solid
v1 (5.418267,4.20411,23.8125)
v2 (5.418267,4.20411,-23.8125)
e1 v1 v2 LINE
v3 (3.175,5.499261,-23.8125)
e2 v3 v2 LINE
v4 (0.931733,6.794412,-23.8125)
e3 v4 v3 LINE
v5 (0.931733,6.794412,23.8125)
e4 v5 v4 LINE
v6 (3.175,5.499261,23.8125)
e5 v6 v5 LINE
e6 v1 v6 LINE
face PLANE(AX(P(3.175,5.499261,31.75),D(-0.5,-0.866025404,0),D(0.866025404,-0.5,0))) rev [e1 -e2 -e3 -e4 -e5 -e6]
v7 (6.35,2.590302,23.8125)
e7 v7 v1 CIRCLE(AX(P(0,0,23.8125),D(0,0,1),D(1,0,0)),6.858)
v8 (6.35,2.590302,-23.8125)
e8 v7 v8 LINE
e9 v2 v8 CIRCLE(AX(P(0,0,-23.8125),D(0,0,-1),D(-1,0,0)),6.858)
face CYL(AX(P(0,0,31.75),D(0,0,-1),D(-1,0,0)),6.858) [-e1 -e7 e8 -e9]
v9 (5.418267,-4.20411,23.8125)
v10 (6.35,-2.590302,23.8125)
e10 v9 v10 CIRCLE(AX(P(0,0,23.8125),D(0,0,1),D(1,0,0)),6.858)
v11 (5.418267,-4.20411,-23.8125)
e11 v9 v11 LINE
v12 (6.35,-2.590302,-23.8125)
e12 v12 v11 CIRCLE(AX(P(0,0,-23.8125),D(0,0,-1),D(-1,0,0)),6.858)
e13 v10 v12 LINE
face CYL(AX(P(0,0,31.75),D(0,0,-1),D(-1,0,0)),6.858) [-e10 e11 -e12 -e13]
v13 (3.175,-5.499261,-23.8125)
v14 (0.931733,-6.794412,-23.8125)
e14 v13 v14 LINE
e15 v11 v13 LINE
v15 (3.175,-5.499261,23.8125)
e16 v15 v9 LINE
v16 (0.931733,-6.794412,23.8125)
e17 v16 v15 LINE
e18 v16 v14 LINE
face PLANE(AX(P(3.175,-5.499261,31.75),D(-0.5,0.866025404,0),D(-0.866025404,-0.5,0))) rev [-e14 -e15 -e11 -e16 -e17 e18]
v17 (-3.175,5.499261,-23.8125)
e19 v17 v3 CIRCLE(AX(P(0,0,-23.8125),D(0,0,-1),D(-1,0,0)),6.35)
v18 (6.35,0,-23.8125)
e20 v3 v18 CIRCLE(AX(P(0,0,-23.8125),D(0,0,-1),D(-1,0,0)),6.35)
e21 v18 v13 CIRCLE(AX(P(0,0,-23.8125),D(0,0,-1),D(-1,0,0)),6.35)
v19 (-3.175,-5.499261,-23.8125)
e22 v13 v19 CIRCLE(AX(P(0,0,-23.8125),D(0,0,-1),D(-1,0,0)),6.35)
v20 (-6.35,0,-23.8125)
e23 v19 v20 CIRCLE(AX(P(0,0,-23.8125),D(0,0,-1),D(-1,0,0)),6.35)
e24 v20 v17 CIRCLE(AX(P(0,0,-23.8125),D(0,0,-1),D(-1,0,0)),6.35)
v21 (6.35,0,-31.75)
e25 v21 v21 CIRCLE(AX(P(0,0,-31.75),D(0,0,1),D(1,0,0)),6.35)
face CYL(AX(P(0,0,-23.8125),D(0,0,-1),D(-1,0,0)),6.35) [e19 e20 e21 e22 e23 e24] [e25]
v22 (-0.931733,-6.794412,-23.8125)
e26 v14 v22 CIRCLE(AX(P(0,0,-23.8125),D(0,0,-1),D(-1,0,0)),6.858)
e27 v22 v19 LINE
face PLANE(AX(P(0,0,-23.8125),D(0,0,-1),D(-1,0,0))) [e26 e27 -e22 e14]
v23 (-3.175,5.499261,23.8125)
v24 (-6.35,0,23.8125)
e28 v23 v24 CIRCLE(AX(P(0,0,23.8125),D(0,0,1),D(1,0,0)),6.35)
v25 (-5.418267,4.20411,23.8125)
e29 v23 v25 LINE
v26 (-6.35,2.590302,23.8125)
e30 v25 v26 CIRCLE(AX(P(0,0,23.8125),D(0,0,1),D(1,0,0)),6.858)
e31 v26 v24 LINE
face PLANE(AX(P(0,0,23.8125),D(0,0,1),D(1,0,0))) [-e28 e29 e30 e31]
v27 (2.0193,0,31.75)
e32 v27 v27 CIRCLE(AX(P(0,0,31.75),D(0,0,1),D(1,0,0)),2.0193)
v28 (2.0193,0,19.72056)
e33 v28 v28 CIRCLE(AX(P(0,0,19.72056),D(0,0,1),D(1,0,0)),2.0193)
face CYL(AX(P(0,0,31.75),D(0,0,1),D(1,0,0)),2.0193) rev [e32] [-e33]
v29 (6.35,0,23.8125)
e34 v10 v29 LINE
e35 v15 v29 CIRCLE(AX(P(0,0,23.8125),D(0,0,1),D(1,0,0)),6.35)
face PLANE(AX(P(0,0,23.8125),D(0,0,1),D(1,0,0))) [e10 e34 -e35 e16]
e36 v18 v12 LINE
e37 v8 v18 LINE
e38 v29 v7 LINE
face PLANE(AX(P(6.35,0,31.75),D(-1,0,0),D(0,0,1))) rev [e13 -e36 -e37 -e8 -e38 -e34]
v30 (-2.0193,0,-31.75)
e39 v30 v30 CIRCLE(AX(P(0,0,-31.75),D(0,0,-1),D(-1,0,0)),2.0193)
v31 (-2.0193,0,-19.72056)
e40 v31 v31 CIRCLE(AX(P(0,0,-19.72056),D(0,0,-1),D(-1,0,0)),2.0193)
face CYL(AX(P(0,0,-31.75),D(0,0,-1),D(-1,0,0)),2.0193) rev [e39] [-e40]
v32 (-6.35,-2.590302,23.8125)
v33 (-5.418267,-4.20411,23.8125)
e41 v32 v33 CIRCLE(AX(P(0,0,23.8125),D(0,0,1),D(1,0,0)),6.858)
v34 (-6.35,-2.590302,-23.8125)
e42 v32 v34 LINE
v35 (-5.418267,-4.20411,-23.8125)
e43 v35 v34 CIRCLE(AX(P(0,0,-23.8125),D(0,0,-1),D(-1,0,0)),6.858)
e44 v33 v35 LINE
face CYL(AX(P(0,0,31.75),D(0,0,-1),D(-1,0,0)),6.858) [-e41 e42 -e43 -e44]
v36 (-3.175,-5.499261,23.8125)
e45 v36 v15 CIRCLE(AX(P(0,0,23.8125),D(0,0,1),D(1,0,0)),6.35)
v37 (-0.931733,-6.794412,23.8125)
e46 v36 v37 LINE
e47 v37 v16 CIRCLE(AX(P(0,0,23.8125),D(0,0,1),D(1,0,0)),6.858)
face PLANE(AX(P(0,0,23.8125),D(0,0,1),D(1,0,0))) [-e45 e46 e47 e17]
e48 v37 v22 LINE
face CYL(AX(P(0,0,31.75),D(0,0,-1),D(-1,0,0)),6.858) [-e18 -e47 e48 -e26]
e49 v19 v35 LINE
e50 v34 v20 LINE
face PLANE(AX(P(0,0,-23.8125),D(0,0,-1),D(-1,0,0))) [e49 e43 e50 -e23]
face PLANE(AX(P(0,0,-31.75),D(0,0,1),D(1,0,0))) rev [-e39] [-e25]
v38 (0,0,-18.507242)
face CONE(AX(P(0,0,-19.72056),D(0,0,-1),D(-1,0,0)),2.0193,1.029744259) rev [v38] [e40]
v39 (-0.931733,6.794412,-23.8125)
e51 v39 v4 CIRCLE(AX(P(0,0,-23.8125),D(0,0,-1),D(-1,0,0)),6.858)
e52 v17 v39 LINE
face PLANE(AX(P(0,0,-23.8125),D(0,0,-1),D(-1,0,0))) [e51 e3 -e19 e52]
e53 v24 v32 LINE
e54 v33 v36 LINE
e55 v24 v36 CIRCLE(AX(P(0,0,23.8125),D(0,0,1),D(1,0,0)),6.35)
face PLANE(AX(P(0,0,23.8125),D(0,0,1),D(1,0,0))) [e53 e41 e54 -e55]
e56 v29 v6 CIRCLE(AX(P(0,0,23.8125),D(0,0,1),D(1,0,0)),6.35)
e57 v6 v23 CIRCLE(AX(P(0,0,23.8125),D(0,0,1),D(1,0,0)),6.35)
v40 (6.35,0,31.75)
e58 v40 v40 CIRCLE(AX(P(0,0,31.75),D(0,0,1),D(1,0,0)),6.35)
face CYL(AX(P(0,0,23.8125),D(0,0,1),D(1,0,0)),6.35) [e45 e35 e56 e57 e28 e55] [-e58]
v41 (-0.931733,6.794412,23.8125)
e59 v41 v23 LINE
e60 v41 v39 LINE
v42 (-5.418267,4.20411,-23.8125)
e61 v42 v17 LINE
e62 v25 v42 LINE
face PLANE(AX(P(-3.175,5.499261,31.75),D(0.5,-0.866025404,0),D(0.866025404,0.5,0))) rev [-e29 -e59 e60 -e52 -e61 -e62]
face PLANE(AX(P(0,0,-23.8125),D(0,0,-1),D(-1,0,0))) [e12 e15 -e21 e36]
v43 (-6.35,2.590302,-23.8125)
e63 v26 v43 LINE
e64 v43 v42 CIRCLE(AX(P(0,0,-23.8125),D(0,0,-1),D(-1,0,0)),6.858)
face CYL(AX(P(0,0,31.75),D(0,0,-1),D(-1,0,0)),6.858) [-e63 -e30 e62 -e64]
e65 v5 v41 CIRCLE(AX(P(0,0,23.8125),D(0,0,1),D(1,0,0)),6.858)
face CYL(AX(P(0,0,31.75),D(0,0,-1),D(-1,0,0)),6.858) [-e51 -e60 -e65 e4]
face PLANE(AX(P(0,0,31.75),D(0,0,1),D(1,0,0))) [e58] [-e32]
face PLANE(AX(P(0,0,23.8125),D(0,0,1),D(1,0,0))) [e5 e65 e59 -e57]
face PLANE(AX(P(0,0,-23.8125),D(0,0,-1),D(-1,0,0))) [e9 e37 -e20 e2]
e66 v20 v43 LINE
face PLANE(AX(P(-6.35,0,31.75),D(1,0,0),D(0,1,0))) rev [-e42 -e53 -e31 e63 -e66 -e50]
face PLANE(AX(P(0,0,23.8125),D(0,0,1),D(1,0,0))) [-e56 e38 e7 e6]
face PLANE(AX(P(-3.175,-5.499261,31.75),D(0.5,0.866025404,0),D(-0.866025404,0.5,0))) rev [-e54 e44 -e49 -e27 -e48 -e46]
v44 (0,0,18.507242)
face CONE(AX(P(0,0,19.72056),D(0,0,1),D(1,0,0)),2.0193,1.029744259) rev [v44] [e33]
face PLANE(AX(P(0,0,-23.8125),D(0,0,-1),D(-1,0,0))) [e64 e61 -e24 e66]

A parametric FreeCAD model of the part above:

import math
import FreeCAD as App
import Part
import Sketcher
Q = App.Units.Quantity


def add_polygon(sketch, points):
    """Adds a closed chain of lines whose ends are joined by coincident constraints."""
    first, n = sketch.GeometryCount, len(points)
    for a, b in zip(points, points[1:] + points[:1]):
        sketch.addGeometry(Part.LineSegment(App.Vector(*a, 0), App.Vector(*b, 0)), False)
    for i in range(n):
        sketch.addConstraint(Sketcher.Constraint("Coincident", first + i, 2, first + (i + 1) % n, 1))

doc = App.newDocument("Part")
body = doc.addObject("PartDesign::Body", "Body")

# Sketch on XY plane
sketch1 = body.newObject("Sketcher::SketchObject", "Sketch")
sketch1.AttachmentSupport = (doc.getObject("XY_Plane"), [""])
sketch1.MapMode = "FlatFace"
sketch1.addGeometry(Part.ArcOfCircle(Part.Circle(App.Vector(0, 0, 0), App.Vector(0, 0, 1), 6.9), math.radians(82.19), math.radians(97.81)), False)
sketch1.addGeometry(Part.LineSegment(App.Vector(-0.9, 6.8, 0), App.Vector(-5.4, 4.2, 0)), False)
sketch1.addGeometry(Part.ArcOfCircle(Part.Circle(App.Vector(0, 0, 0), App.Vector(0, 0, 1), 6.9), math.radians(142.19), math.radians(157.81)), False)
sketch1.addGeometry(Part.LineSegment(App.Vector(-6.3, 2.6, 0), App.Vector(-6.3, -2.6, 0)), False)
sketch1.addGeometry(Part.ArcOfCircle(Part.Circle(App.Vector(0, 0, 0), App.Vector(0, 0, 1), 6.9), math.radians(-157.81), math.radians(-142.19)), False)
sketch1.addGeometry(Part.LineSegment(App.Vector(-5.4, -4.2, 0), App.Vector(-0.9, -6.8, 0)), False)
sketch1.addGeometry(Part.ArcOfCircle(Part.Circle(App.Vector(0, 0, 0), App.Vector(0, 0, 1), 6.9), math.radians(-97.81), math.radians(-82.19)), False)
sketch1.addGeometry(Part.LineSegment(App.Vector(0.9, -6.8, 0), App.Vector(5.4, -4.2, 0)), False)
sketch1.addGeometry(Part.ArcOfCircle(Part.Circle(App.Vector(0, 0, 0), App.Vector(0, 0, 1), 6.9), math.radians(-37.81), math.radians(-22.19)), False)
sketch1.addGeometry(Part.LineSegment(App.Vector(6.3, -2.6, 0), App.Vector(6.3, 2.6, 0)), False)
sketch1.addGeometry(Part.ArcOfCircle(Part.Circle(App.Vector(0, 0, 0), App.Vector(0, 0, 1), 6.9), math.radians(22.19), math.radians(37.81)), False)
sketch1.addGeometry(Part.LineSegment(App.Vector(5.4, 4.2, 0), App.Vector(0.9, 6.8, 0)), False)
sketch1.addConstraint(Sketcher.Constraint("Coincident", 0, 2, 1, 1))
sketch1.addConstraint(Sketcher.Constraint("Coincident", 1, 2, 2, 1))
sketch1.addConstraint(Sketcher.Constraint("Coincident", 2, 2, 3, 1))
sketch1.addConstraint(Sketcher.Constraint("Coincident", 3, 2, 4, 1))
sketch1.addConstraint(Sketcher.Constraint("Coincident", 4, 2, 5, 1))
sketch1.addConstraint(Sketcher.Constraint("Coincident", 5, 2, 6, 1))
sketch1.addConstraint(Sketcher.Constraint("Coincident", 6, 2, 7, 1))
sketch1.addConstraint(Sketcher.Constraint("Coincident", 7, 2, 8, 1))
sketch1.addConstraint(Sketcher.Constraint("Coincident", 8, 2, 9, 1))
sketch1.addConstraint(Sketcher.Constraint("Coincident", 9, 2, 10, 1))
sketch1.addConstraint(Sketcher.Constraint("Coincident", 10, 2, 11, 1))
sketch1.addConstraint(Sketcher.Constraint("Coincident", 11, 2, 0, 1))
sketch1.addConstraint(Sketcher.Constraint("Vertical", 3))
sketch1.addConstraint(Sketcher.Constraint("Vertical", 9))
sketch1.addConstraint(Sketcher.Constraint("Coincident", 0, 3, -1, 1))
sketch1.addConstraint(Sketcher.Constraint("Coincident", 2, 3, -1, 1))
sketch1.addConstraint(Sketcher.Constraint("Coincident", 4, 3, -1, 1))
sketch1.addConstraint(Sketcher.Constraint("Coincident", 6, 3, -1, 1))
sketch1.addConstraint(Sketcher.Constraint("Coincident", 8, 3, -1, 1))
sketch1.addConstraint(Sketcher.Constraint("Coincident", 10, 3, -1, 1))
sketch1.addConstraint(Sketcher.Constraint("Equal", 0, 2))
sketch1.addConstraint(Sketcher.Constraint("Equal", 2, 4))
sketch1.addConstraint(Sketcher.Constraint("Equal", 4, 6))
sketch1.addConstraint(Sketcher.Constraint("Equal", 6, 8))
sketch1.addConstraint(Sketcher.Constraint("Equal", 8, 10))
sketch1.addConstraint(Sketcher.Constraint("Parallel", 1, 7))
sketch1.addConstraint(Sketcher.Constraint("Parallel", 5, 11))
sketch1.addConstraint(Sketcher.Constraint("Horizontal", 5, 2, 6, 2))
sketch1.addConstraint(Sketcher.Constraint("Horizontal", 4, 2, 7, 2))
sketch1.addConstraint(Sketcher.Constraint("Horizontal", 3, 2, 8, 2))
sketch1.addConstraint(Sketcher.Constraint("Horizontal", 1, 2, 10, 2))
sketch1.addConstraint(Sketcher.Constraint("Vertical", 1, 2, 4, 2))
sketch1.addConstraint(Sketcher.Constraint("Radius", 0, Q("0.27 in")))
sketch1.addConstraint(Sketcher.Constraint("Angle", 1, Q("-150 deg")))
sketch1.addConstraint(Sketcher.Constraint("DistanceX", 2, 2, -1, 1, Q("0.25 in")))
sketch1.addConstraint(Sketcher.Constraint("DistanceX", 4, 2, 6, 2, Q("0.25 in")))
pad1 = body.newObject("PartDesign::Pad", "Pad")
pad1.Profile = sketch1
pad1.Length = Q("2.5 in")
pad1.Midplane = True

# Sketch on XY plane
sketch2 = body.newObject("Sketcher::SketchObject", "Sketch001")
sketch2.AttachmentSupport = (doc.getObject("XY_Plane"), [""])
sketch2.MapMode = "FlatFace"
sketch2.AttachmentOffset = App.Placement(App.Vector(0, 0, 1.25 * 25.4), App.Rotation())
add_polygon(sketch2, [(-14, 14), (-14, -14), (14, -14), (14, 14)])  # lines 0-3
sketch2.addGeometry(Part.Circle(App.Vector(0, 0, 0), App.Vector(0, 0, 1), 6), False)  # 4
sketch2.addConstraint(Sketcher.Constraint("Vertical", 0))
sketch2.addConstraint(Sketcher.Constraint("Horizontal", 1))
sketch2.addConstraint(Sketcher.Constraint("Vertical", 2))
sketch2.addConstraint(Sketcher.Constraint("Horizontal", 3))
sketch2.addConstraint(Sketcher.Constraint("Coincident", 4, 3, -1, 1))
sketch2.addConstraint(Sketcher.Constraint("Symmetric", 0, 2, 2, 2, -1, 1))
sketch2.addConstraint(Sketcher.Constraint("Diameter", 4, Q("0.5 in")))
sketch2.addConstraint(Sketcher.Constraint("DistanceX", 1, 1, 1, 2, 27.938))
sketch2.addConstraint(Sketcher.Constraint("DistanceY", 0, 2, 0, 1, 28.954))
pocket1 = body.newObject("PartDesign::Pocket", "Pocket")
pocket1.Profile = sketch2
pocket1.Length = Q("0.3125 in")

# Sketch on XY plane
sketch3 = body.newObject("Sketcher::SketchObject", "Sketch002")
sketch3.AttachmentSupport = (doc.getObject("XY_Plane"), [""])
sketch3.MapMode = "FlatFace"
sketch3.AttachmentOffset = App.Placement(App.Vector(0, 0, -1.25 * 25.4), App.Rotation())
add_polygon(sketch3, [(14, 14), (14, -14), (-14, -14), (-14, 14)])  # lines 0-3
sketch3.addGeometry(Part.Circle(App.Vector(0, 0, 0), App.Vector(0, 0, 1), 6), False)  # 4
sketch3.addConstraint(Sketcher.Constraint("Vertical", 0))
sketch3.addConstraint(Sketcher.Constraint("Horizontal", 1))
sketch3.addConstraint(Sketcher.Constraint("Vertical", 2))
sketch3.addConstraint(Sketcher.Constraint("Horizontal", 3))
sketch3.addConstraint(Sketcher.Constraint("Coincident", 4, 3, -1, 1))
sketch3.addConstraint(Sketcher.Constraint("Symmetric", 0, 2, 2, 2, -1, 1))
sketch3.addConstraint(Sketcher.Constraint("Diameter", 4, Q("0.5 in")))
sketch3.addConstraint(Sketcher.Constraint("DistanceX", 1, 2, 1, 1, 27.938))
sketch3.addConstraint(Sketcher.Constraint("DistanceY", 0, 2, 0, 1, 28.954))
pocket2 = body.newObject("PartDesign::Pocket", "Pocket001")
pocket2.Profile = sketch3
pocket2.Length = Q("0.3125 in")
pocket2.Reversed = True

# Sketch on XY plane
sketch4 = body.newObject("Sketcher::SketchObject", "Sketch003")
sketch4.AttachmentSupport = (doc.getObject("XY_Plane"), [""])
sketch4.MapMode = "FlatFace"
sketch4.AttachmentOffset = App.Placement(App.Vector(0, 0, -1.25 * 25.4), App.Rotation())
sketch4.addGeometry(Part.Circle(App.Vector(0, 0, 0), App.Vector(0, 0, 1), 2), False)
sketch4.addConstraint(Sketcher.Constraint("Coincident", 0, 3, -1, 1))
sketch4.addConstraint(Sketcher.Constraint("Diameter", 0, Q("0.159 in")))
doc.recompute()
hole = body.newObject("PartDesign::Hole", "Hole")
hole.Profile = sketch4
hole.ThreadType = "None"
hole.Diameter = Q("0.159 in")
hole.DepthType = "Dimension"
hole.Depth = Q("0.4736 in")
hole.DrillPoint = "Angled"
hole.DrillPointAngle = 118
hole.Reversed = True

# Sketch on XY plane
sketch5 = body.newObject("Sketcher::SketchObject", "Sketch004")
sketch5.AttachmentSupport = (doc.getObject("XY_Plane"), [""])
sketch5.MapMode = "FlatFace"
sketch5.AttachmentOffset = App.Placement(App.Vector(0, 0, 1.25 * 25.4), App.Rotation())
sketch5.addGeometry(Part.Circle(App.Vector(0, 0, 0), App.Vector(0, 0, 1), 2), False)
sketch5.addConstraint(Sketcher.Constraint("Coincident", 0, 3, -1, 1))
sketch5.addConstraint(Sketcher.Constraint("Diameter", 0, Q("0.159 in")))
doc.recompute()
hole2 = body.newObject("PartDesign::Hole", "Hole001")
hole2.Profile = sketch5
hole2.ThreadType = "None"
hole2.Diameter = Q("0.159 in")
hole2.DepthType = "Dimension"
hole2.Depth = Q("0.4736 in")
hole2.DrillPoint = "Angled"
hole2.DrillPointAngle = 118

doc.recompute()
